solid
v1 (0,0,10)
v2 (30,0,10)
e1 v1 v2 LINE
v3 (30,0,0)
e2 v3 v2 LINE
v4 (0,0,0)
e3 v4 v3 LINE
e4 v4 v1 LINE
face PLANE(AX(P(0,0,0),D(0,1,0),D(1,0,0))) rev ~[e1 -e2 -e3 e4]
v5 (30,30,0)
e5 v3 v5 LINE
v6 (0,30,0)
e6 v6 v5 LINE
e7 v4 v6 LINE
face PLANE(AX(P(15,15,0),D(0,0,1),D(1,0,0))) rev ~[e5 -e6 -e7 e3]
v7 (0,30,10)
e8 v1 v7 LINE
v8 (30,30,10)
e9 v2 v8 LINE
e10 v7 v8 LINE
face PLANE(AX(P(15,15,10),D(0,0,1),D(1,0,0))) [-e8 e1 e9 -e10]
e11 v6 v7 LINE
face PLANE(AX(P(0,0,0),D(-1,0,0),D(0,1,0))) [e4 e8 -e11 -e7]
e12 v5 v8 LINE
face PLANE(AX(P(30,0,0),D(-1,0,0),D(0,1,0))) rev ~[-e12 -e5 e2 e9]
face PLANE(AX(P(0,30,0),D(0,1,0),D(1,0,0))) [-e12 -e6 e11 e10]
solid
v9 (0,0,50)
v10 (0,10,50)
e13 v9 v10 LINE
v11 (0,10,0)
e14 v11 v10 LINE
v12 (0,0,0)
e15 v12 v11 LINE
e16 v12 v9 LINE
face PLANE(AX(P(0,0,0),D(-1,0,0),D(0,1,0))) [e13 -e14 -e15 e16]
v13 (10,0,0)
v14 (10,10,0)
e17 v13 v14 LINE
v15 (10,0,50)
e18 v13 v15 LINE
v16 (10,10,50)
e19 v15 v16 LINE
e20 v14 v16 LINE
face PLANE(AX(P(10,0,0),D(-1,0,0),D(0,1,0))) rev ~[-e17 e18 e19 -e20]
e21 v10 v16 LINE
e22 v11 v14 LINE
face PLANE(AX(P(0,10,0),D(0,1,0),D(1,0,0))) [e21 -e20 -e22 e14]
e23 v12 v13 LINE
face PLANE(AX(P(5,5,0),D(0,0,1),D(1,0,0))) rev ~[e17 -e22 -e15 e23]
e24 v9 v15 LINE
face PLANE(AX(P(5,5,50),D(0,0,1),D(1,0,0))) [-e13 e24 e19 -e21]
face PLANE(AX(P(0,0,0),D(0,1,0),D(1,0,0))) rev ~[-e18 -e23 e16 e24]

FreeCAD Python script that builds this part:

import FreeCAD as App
import Part
import Sketcher

V = App.Vector
Q = App.Units.Quantity


def add_polygon(sketch, points):
    """Adds a closed chain of lines whose ends are joined by coincident constraints."""
    first, n = sketch.GeometryCount, len(points)
    for a, b in zip(points, points[1:] + points[:1]):
        sketch.addGeometry(Part.LineSegment(App.Vector(*a, 0), App.Vector(*b, 0)), False)
    for i in range(n):
        sketch.addConstraint(Sketcher.Constraint("Coincident", first + i, 2, first + (i + 1) % n, 1))

doc = App.newDocument("Part")
body = doc.addObject("PartDesign::Body", "Body")

# Sketch on XY plane
sketch1 = body.newObject("Sketcher::SketchObject", "Sketch")
sketch1.AttachmentSupport = (doc.getObject("XY_Plane"), [""])
sketch1.MapMode = "FlatFace"
add_polygon(sketch1, [(0, 30), (0, 0), (30, 0), (30, 30)])  # lines 0-3
sketch1.addConstraint(Sketcher.Constraint("Vertical", 0))
sketch1.addConstraint(Sketcher.Constraint("Horizontal", 1))
sketch1.addConstraint(Sketcher.Constraint("Vertical", 2))
sketch1.addConstraint(Sketcher.Constraint("Horizontal", 3))
sketch1.addConstraint(Sketcher.Constraint("Coincident", 0, 2, -1, 1))
sketch1.addConstraint(Sketcher.Constraint("Equal", 3, 0))
sketch1.addConstraint(Sketcher.Constraint("DistanceX", 1, 1, 1, 2, Q("30 mm")))
pad1 = body.newObject("PartDesign::Pad", "Pad")
pad1.Profile = sketch1
pad1.Length = 10
body2 = doc.addObject("PartDesign::Body", "Body001")

# Sketch on XY plane
sketch2 = body2.newObject("Sketcher::SketchObject", "Sketch001")
sketch2.AttachmentSupport = (doc.getObject("XY_Plane001"), [""])
sketch2.MapMode = "FlatFace"
add_polygon(sketch2, [(0, 10), (0, 0), (10, 0), (10, 10)])  # lines 0-3
sketch2.addConstraint(Sketcher.Constraint("Vertical", 0))
sketch2.addConstraint(Sketcher.Constraint("Horizontal", 1))
sketch2.addConstraint(Sketcher.Constraint("Vertical", 2))
sketch2.addConstraint(Sketcher.Constraint("Horizontal", 3))
sketch2.addConstraint(Sketcher.Constraint("Coincident", 0, 2, -1, 1))
sketch2.addConstraint(Sketcher.Constraint("Equal", 3, 0))
sketch2.addConstraint(Sketcher.Constraint("DistanceX", 1, 1, 1, 2, Q("10 mm")))
pad2 = body2.newObject("PartDesign::Pad", "Pad001")
pad2.Profile = sketch2
pad2.Length = 50

doc.recompute()
